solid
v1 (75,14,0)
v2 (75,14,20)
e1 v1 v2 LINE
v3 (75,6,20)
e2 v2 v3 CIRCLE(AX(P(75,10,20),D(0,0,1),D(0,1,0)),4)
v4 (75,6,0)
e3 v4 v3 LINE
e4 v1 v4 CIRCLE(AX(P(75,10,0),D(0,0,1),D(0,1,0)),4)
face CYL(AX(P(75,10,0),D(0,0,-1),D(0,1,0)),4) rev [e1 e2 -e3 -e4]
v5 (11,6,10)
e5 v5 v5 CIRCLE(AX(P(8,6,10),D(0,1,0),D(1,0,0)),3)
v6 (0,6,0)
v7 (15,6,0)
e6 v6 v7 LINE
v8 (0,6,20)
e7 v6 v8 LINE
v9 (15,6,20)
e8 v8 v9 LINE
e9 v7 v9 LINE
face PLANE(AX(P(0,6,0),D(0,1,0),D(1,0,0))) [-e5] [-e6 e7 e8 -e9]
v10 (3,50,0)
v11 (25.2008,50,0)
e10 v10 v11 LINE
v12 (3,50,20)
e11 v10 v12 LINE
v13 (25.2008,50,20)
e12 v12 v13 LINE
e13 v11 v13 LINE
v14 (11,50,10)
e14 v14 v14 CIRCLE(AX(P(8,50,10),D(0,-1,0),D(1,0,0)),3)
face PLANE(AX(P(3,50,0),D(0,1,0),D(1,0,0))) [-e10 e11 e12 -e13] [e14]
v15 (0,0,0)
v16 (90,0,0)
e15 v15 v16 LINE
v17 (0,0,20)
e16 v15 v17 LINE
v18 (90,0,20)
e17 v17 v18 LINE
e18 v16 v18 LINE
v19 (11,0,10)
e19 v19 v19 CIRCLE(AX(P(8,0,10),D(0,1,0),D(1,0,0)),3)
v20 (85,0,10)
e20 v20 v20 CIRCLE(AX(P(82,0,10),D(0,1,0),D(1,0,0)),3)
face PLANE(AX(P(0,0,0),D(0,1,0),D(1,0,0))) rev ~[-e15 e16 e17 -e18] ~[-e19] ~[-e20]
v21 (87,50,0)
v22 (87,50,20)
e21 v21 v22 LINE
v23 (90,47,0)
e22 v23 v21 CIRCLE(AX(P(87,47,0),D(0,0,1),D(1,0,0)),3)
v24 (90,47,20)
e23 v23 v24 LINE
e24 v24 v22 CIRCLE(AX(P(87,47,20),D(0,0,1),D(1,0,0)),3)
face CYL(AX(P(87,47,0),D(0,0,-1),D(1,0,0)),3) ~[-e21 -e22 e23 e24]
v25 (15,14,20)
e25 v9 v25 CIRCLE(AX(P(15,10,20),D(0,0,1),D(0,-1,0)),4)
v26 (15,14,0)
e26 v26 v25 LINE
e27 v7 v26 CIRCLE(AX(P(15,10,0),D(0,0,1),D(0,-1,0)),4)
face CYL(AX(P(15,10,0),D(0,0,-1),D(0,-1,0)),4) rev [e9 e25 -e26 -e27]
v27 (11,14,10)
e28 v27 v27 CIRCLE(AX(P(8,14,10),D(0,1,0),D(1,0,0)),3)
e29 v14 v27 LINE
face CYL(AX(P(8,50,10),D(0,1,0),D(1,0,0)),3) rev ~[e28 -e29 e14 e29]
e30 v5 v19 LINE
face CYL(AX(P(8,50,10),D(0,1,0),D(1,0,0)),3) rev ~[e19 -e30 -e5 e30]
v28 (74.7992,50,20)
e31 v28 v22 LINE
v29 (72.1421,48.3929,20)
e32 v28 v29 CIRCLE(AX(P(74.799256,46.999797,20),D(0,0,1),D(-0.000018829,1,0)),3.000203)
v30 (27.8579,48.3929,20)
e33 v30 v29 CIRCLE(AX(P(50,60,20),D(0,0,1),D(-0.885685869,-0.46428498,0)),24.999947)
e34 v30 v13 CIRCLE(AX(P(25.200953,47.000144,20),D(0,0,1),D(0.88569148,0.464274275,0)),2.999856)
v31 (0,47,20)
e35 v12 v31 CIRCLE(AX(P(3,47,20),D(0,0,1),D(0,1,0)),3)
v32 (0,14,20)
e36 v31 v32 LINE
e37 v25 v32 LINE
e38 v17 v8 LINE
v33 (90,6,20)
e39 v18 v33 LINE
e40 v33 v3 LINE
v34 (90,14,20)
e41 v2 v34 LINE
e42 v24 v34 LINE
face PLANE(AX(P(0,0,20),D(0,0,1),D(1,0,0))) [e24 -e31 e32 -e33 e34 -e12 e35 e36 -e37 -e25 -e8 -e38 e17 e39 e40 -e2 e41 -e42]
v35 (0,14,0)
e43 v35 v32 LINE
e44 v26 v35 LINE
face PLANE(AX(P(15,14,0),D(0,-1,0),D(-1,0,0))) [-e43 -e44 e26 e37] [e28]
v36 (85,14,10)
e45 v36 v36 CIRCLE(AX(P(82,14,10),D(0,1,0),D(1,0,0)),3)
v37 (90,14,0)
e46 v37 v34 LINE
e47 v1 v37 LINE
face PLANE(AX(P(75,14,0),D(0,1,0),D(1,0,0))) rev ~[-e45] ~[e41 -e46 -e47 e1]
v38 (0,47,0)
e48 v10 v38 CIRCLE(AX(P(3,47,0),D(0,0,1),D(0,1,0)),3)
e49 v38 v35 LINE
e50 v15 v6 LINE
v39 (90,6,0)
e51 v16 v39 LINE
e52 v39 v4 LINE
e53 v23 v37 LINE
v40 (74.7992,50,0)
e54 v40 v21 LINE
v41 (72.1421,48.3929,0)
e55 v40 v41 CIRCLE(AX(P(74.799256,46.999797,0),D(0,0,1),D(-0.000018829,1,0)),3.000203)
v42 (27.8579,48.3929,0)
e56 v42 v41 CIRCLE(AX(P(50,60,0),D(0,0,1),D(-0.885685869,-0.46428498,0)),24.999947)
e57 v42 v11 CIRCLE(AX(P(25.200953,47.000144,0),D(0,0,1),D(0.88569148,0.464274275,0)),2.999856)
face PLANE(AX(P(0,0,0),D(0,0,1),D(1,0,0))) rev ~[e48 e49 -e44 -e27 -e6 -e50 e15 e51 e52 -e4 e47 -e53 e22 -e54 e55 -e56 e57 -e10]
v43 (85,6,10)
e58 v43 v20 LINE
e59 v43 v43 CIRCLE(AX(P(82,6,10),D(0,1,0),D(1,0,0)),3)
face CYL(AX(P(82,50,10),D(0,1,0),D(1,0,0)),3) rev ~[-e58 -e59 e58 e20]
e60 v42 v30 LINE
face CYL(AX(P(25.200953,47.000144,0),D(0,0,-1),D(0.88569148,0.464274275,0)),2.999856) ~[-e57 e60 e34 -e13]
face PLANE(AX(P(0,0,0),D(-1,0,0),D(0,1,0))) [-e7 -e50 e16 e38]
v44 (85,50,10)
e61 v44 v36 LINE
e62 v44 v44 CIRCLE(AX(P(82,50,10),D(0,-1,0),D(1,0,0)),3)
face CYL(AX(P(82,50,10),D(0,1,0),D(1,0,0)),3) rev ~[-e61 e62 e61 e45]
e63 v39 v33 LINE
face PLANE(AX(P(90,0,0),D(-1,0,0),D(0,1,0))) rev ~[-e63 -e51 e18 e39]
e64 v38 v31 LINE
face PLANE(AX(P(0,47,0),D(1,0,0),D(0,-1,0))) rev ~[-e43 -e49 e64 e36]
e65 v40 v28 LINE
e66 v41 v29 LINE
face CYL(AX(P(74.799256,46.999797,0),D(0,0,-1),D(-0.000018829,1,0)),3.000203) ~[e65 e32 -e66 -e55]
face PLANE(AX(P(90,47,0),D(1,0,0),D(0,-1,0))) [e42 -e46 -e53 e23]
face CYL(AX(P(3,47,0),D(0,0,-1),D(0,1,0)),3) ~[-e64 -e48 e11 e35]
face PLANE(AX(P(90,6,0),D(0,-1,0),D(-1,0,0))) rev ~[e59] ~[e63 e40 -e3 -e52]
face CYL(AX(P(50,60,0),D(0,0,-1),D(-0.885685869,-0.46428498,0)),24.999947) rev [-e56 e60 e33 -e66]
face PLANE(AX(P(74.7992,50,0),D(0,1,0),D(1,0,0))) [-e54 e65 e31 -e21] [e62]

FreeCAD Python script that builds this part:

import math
import FreeCAD as App
import Part
import Sketcher
from FreeCAD import Vector
Q = App.Units.Quantity

doc = App.newDocument("Part")
params = doc.addObject("Spreadsheet::Sheet", "Params")
for row, (alias, value) in enumerate([
    ("sketch1_radius", "3 mm"),
    ("sketch1_radius2", "25 mm"),
    ("sketch1_width", "90 mm"),
    ("sketch1_width2", "15 mm"),
    ("sketch1_height", "6 mm"),
    ("pad1_length", "20 mm"),
    ("sketch2_diameter", "6 mm"),
], start=1):
    params.set(f"A{row}", alias)
    params.set(f"B{row}", "=" + value)
    params.setAlias(f"B{row}", alias)

body = doc.addObject("PartDesign::Body", "Body")

sketch1 = body.newObject("Sketcher::SketchObject", "Sketch")
sketch1.AttachmentSupport = (doc.getObject("XY_Plane"), [""])
sketch1.MapMode = "FlatFace"
sketch1.addGeometry(Part.LineSegment(Vector(0, 6, 0), Vector(0, 0, 0)), False)
sketch1.addGeometry(Part.LineSegment(Vector(0, 0, 0), Vector(90, 0, 0)), False)
sketch1.addGeometry(Part.LineSegment(Vector(90, 0, 0), Vector(90, 6, 0)), False)
sketch1.addGeometry(Part.LineSegment(Vector(90, 6, 0), Vector(75, 6, 0)), False)
sketch1.addGeometry(Part.ArcOfCircle(Part.Circle(Vector(75, 10, 0), Vector(0, 0, 1), 4), math.radians(90), math.radians(270)), False)
sketch1.addGeometry(Part.LineSegment(Vector(75, 14, 0), Vector(90, 14, 0)), False)
sketch1.addGeometry(Part.LineSegment(Vector(90, 14, 0), Vector(90, 47, 0)), False)
sketch1.addGeometry(Part.ArcOfCircle(Part.Circle(Vector(87, 47, 0), Vector(0, 0, 1), 3), math.radians(0), math.radians(90)), False)
sketch1.addGeometry(Part.LineSegment(Vector(87, 50, 0), Vector(74.7992, 50, 0)), False)
sketch1.addGeometry(Part.ArcOfCircle(Part.Circle(Vector(74.7992, 47, 0), Vector(0, 0, 1), 3), math.radians(90), math.radians(152.335657)), False)
sketch1.addGeometry(Part.ArcOfCircle(Part.Circle(Vector(50, 60, 0), Vector(0, 0, 1), 24.999947), math.radians(-152.336043), math.radians(-27.663957)), False)
sketch1.addGeometry(Part.ArcOfCircle(Part.Circle(Vector(25.2008, 47, 0), Vector(0, 0, 1), 3.000058), math.radians(27.664343), math.radians(90)), False)
sketch1.addGeometry(Part.LineSegment(Vector(25.2008, 50, 0), Vector(3, 50, 0)), False)
sketch1.addGeometry(Part.ArcOfCircle(Part.Circle(Vector(3, 47, 0), Vector(0, 0, 1), 3), math.radians(90), math.radians(180)), False)
sketch1.addGeometry(Part.LineSegment(Vector(0, 47, 0), Vector(0, 14, 0)), False)
sketch1.addGeometry(Part.LineSegment(Vector(0, 14, 0), Vector(15, 14, 0)), False)
sketch1.addGeometry(Part.ArcOfCircle(Part.Circle(Vector(15, 10, 0), Vector(0, 0, 1), 4), math.radians(-90), math.radians(90)), False)
sketch1.addGeometry(Part.LineSegment(Vector(15, 6, 0), Vector(0, 6, 0)), False)
sketch1.addConstraint(Sketcher.Constraint("Coincident", 0, 2, 1, 1))
sketch1.addConstraint(Sketcher.Constraint("Coincident", 1, 2, 2, 1))
sketch1.addConstraint(Sketcher.Constraint("Coincident", 2, 2, 3, 1))
sketch1.addConstraint(Sketcher.Constraint("Tangent", 3, 2, 4, 2))
sketch1.addConstraint(Sketcher.Constraint("Tangent", 4, 1, 5, 1))
sketch1.addConstraint(Sketcher.Constraint("Coincident", 5, 2, 6, 1))
sketch1.addConstraint(Sketcher.Constraint("Tangent", 6, 2, 7, 1))
sketch1.addConstraint(Sketcher.Constraint("Tangent", 7, 2, 8, 1))
sketch1.addConstraint(Sketcher.Constraint("Tangent", 8, 2, 9, 1))
sketch1.addConstraint(Sketcher.Constraint("Tangent", 9, 2, 10, 2))
sketch1.addConstraint(Sketcher.Constraint("Tangent", 10, 1, 11, 1))
sketch1.addConstraint(Sketcher.Constraint("Tangent", 11, 2, 12, 1))
sketch1.addConstraint(Sketcher.Constraint("Tangent", 12, 2, 13, 1))
sketch1.addConstraint(Sketcher.Constraint("Tangent", 13, 2, 14, 1))
sketch1.addConstraint(Sketcher.Constraint("Coincident", 14, 2, 15, 1))
sketch1.addConstraint(Sketcher.Constraint("Tangent", 15, 2, 16, 2))
sketch1.addConstraint(Sketcher.Constraint("Tangent", 16, 1, 17, 1))
sketch1.addConstraint(Sketcher.Constraint("Coincident", 17, 2, 0, 1))
sketch1.addConstraint(Sketcher.Constraint("Vertical", 0))
sketch1.addConstraint(Sketcher.Constraint("Horizontal", 1))
sketch1.addConstraint(Sketcher.Constraint("Vertical", 2))
sketch1.addConstraint(Sketcher.Constraint("Horizontal", 3))
sketch1.addConstraint(Sketcher.Constraint("Horizontal", 5))
sketch1.addConstraint(Sketcher.Constraint("Vertical", 6))
sketch1.addConstraint(Sketcher.Constraint("Horizontal", 8))
sketch1.addConstraint(Sketcher.Constraint("Horizontal", 12))
sketch1.addConstraint(Sketcher.Constraint("Vertical", 14))
sketch1.addConstraint(Sketcher.Constraint("Horizontal", 15))
sketch1.addConstraint(Sketcher.Constraint("Horizontal", 17))
sketch1.addConstraint(Sketcher.Constraint("Coincident", 0, 2, -1, 1))
sketch1.addConstraint(Sketcher.Constraint("Equal", 7, 9))
sketch1.addConstraint(Sketcher.Constraint("Equal", 9, 11))
sketch1.addConstraint(Sketcher.Constraint("Equal", 11, 13))
sketch1.addConstraint(Sketcher.Constraint("Equal", 4, 16))
sketch1.addConstraint(Sketcher.Constraint("PointOnObject", 13, 2, -2))
sketch1.addConstraint(Sketcher.Constraint("Horizontal", 9, 3, 11, 3))
sketch1.addConstraint(Sketcher.Constraint("Horizontal", 4, 3, 16, 3))
sketch1.addConstraint(Sketcher.Constraint("Vertical", 2, 2, 5, 2))
sketch1.addConstraint(Sketcher.Constraint("Equal", 5, 15))
sketch1.addConstraint(Sketcher.Constraint("Radius", 7, Q("3 mm")))
sketch1.addConstraint(Sketcher.Constraint("Radius", 10, Q("25 mm")))
sketch1.addConstraint(Sketcher.Constraint("DistanceX", 1, 1, 1, 2, Q("90 mm")))
sketch1.addConstraint(Sketcher.Constraint("DistanceX", 3, 2, 3, 1, Q("15 mm")))
sketch1.addConstraint(Sketcher.Constraint("DistanceY", 0, 2, 0, 1, Q("6 mm")))
sketch1.addConstraint(Sketcher.Constraint("DistanceX", -1, 1, 10, 3, Q("50 mm")))
sketch1.addConstraint(Sketcher.Constraint("DistanceY", -1, 1, 7, 2, Q("50 mm")))
sketch1.addConstraint(Sketcher.Constraint("Radius", 4, Q("4 mm")))
sketch1.addConstraint(Sketcher.Constraint("DistanceY", 4, 3, 10, 3, Q("50 mm")))
sketch1.setExpression("Constraints[39]", "Params.sketch1_radius")
sketch1.setExpression("Constraints[40]", "Params.sketch1_radius2")
sketch1.setExpression("Constraints[41]", "Params.sketch1_width")
sketch1.setExpression("Constraints[42]", "Params.sketch1_width2")
sketch1.setExpression("Constraints[43]", "Params.sketch1_height")
pad1 = body.newObject("PartDesign::Pad", "Pad")
pad1.Profile = sketch1
pad1.setExpression("Length", "Params.pad1_length")

sketch2 = body.newObject("Sketcher::SketchObject", "Sketch001")
sketch2.AttachmentSupport = (doc.getObject("XZ_Plane"), [""])
sketch2.MapMode = "FlatFace"
sketch2.AttachmentOffset = App.Placement(Vector(0, 0, -50), App.Rotation())
sketch2.addGeometry(Part.Circle(Vector(82, 10, 0), Vector(0, 0, 1), 3), False)
sketch2.addGeometry(Part.Circle(Vector(8, 10, 0), Vector(0, 0, 1), 3), False)
sketch2.addConstraint(Sketcher.Constraint("Equal", 0, 1))
sketch2.addConstraint(Sketcher.Constraint("Horizontal", 0, 3, 1, 3))
sketch2.addConstraint(Sketcher.Constraint("Diameter", 0, Q("6 mm")))
sketch2.addConstraint(Sketcher.Constraint("DistanceY", -1, 1, 0, 3, Q("10 mm")))
sketch2.addConstraint(Sketcher.Constraint("DistanceX", -1, 1, 1, 3, Q("8 mm")))
sketch2.addConstraint(Sketcher.Constraint("DistanceX", -1, 1, 0, 3, Q("82 mm")))
sketch2.setExpression("Constraints[2]", "Params.sketch2_diameter")
pocket1 = body.newObject("PartDesign::Pocket", "Pocket")
pocket1.Profile = sketch2
pocket1.Type = "ThroughAll"
pocket1.Reversed = True

doc.recompute()
